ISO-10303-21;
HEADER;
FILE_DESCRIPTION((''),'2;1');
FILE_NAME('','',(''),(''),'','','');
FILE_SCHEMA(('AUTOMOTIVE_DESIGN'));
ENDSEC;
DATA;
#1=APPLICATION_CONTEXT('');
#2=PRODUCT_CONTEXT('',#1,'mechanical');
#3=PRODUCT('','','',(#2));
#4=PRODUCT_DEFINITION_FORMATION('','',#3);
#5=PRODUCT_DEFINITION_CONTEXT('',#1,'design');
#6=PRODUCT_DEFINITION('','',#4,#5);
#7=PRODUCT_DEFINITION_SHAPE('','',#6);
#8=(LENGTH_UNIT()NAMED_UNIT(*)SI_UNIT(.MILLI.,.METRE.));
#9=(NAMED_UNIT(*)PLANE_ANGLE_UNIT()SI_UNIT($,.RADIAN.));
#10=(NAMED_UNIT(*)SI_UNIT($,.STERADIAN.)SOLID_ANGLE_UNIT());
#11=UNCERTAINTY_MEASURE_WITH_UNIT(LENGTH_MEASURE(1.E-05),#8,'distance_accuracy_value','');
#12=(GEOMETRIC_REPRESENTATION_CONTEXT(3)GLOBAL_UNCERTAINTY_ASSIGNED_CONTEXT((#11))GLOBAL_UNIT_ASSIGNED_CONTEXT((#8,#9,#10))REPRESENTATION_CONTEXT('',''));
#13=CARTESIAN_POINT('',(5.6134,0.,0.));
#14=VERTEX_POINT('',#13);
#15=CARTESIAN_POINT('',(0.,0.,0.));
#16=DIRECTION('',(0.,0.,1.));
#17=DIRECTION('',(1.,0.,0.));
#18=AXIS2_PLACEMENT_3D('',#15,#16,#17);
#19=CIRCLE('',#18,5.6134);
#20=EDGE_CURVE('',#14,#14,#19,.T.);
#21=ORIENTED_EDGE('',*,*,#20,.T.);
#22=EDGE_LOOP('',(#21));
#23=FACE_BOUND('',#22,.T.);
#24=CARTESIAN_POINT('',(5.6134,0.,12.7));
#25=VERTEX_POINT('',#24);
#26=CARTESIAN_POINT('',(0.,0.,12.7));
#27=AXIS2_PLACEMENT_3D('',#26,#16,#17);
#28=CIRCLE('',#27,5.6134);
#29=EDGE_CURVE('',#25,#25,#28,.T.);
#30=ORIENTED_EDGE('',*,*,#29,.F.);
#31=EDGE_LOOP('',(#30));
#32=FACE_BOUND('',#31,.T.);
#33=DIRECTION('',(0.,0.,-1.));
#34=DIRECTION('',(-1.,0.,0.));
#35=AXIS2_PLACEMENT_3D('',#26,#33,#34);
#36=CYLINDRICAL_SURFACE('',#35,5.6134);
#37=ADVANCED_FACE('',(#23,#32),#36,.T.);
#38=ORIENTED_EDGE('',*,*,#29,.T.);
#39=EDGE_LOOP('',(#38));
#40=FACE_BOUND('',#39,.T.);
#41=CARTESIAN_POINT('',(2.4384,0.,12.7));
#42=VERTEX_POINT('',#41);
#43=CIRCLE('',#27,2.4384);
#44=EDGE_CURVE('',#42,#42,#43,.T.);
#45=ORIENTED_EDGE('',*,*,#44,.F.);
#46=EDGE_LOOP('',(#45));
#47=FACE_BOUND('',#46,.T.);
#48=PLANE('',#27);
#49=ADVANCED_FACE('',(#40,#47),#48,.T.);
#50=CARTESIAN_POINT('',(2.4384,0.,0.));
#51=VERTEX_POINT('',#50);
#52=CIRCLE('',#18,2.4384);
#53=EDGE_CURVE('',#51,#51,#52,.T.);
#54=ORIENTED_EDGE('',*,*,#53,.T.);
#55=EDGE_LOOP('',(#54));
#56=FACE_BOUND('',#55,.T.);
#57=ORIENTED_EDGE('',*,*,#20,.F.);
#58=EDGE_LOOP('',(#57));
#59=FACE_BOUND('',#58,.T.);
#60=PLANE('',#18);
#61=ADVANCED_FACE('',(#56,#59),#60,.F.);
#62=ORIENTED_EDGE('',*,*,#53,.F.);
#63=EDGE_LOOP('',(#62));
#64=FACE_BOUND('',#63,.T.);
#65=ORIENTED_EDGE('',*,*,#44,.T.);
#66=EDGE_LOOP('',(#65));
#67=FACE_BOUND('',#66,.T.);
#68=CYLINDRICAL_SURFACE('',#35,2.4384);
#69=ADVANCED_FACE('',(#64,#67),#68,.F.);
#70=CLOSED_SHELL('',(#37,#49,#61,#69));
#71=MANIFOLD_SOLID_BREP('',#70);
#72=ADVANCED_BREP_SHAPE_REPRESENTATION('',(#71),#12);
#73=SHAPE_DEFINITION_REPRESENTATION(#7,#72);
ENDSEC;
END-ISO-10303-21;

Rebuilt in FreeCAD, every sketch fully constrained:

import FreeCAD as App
import Part
import Sketcher
Q = App.Units.Quantity

doc = App.newDocument("Part")
params = doc.addObject("Spreadsheet::Sheet", "Params")
for row, (alias, value) in enumerate([
    ("sketch1_diameter", "0.442 in"),
    ("sketch1_diameter2", "0.192 in"),
    ("pad1_length", "0.5 in"),
], start=1):
    params.set(f"A{row}", alias)
    params.set(f"B{row}", "=" + value)
    params.setAlias(f"B{row}", alias)

body = doc.addObject("PartDesign::Body", "Body")

sketch1 = doc.addObject("Sketcher::SketchObject", "Sketch")
body.addObject(sketch1)
sketch1.AttachmentSupport = (doc.XY_Plane, [""])
sketch1.MapMode = "FlatFace"
sketch1.addGeometry([
    Part.Circle(App.Vector(0, 0, 0), App.Vector(0, 0, 1), 5.6134),
    Part.Circle(App.Vector(0, 0, 0), App.Vector(0, 0, 1), 2.4384),
], False)
sketch1.addConstraint([
    Sketcher.Constraint("Coincident", 0, 3, -1, 1),
    Sketcher.Constraint("Coincident", 1, 3, -1, 1),
    Sketcher.Constraint("Diameter", 0, Q("0.442 in")),
    Sketcher.Constraint("Diameter", 1, Q("0.192 in")),
])
sketch1.setExpression("Constraints[2]", "Params.sketch1_diameter")
sketch1.setExpression("Constraints[3]", "Params.sketch1_diameter2")
pad1 = doc.addObject("PartDesign::Pad", "Pad")
body.addObject(pad1)
pad1.Profile = sketch1
pad1.setExpression("Length", "Params.pad1_length")

doc.recompute()
